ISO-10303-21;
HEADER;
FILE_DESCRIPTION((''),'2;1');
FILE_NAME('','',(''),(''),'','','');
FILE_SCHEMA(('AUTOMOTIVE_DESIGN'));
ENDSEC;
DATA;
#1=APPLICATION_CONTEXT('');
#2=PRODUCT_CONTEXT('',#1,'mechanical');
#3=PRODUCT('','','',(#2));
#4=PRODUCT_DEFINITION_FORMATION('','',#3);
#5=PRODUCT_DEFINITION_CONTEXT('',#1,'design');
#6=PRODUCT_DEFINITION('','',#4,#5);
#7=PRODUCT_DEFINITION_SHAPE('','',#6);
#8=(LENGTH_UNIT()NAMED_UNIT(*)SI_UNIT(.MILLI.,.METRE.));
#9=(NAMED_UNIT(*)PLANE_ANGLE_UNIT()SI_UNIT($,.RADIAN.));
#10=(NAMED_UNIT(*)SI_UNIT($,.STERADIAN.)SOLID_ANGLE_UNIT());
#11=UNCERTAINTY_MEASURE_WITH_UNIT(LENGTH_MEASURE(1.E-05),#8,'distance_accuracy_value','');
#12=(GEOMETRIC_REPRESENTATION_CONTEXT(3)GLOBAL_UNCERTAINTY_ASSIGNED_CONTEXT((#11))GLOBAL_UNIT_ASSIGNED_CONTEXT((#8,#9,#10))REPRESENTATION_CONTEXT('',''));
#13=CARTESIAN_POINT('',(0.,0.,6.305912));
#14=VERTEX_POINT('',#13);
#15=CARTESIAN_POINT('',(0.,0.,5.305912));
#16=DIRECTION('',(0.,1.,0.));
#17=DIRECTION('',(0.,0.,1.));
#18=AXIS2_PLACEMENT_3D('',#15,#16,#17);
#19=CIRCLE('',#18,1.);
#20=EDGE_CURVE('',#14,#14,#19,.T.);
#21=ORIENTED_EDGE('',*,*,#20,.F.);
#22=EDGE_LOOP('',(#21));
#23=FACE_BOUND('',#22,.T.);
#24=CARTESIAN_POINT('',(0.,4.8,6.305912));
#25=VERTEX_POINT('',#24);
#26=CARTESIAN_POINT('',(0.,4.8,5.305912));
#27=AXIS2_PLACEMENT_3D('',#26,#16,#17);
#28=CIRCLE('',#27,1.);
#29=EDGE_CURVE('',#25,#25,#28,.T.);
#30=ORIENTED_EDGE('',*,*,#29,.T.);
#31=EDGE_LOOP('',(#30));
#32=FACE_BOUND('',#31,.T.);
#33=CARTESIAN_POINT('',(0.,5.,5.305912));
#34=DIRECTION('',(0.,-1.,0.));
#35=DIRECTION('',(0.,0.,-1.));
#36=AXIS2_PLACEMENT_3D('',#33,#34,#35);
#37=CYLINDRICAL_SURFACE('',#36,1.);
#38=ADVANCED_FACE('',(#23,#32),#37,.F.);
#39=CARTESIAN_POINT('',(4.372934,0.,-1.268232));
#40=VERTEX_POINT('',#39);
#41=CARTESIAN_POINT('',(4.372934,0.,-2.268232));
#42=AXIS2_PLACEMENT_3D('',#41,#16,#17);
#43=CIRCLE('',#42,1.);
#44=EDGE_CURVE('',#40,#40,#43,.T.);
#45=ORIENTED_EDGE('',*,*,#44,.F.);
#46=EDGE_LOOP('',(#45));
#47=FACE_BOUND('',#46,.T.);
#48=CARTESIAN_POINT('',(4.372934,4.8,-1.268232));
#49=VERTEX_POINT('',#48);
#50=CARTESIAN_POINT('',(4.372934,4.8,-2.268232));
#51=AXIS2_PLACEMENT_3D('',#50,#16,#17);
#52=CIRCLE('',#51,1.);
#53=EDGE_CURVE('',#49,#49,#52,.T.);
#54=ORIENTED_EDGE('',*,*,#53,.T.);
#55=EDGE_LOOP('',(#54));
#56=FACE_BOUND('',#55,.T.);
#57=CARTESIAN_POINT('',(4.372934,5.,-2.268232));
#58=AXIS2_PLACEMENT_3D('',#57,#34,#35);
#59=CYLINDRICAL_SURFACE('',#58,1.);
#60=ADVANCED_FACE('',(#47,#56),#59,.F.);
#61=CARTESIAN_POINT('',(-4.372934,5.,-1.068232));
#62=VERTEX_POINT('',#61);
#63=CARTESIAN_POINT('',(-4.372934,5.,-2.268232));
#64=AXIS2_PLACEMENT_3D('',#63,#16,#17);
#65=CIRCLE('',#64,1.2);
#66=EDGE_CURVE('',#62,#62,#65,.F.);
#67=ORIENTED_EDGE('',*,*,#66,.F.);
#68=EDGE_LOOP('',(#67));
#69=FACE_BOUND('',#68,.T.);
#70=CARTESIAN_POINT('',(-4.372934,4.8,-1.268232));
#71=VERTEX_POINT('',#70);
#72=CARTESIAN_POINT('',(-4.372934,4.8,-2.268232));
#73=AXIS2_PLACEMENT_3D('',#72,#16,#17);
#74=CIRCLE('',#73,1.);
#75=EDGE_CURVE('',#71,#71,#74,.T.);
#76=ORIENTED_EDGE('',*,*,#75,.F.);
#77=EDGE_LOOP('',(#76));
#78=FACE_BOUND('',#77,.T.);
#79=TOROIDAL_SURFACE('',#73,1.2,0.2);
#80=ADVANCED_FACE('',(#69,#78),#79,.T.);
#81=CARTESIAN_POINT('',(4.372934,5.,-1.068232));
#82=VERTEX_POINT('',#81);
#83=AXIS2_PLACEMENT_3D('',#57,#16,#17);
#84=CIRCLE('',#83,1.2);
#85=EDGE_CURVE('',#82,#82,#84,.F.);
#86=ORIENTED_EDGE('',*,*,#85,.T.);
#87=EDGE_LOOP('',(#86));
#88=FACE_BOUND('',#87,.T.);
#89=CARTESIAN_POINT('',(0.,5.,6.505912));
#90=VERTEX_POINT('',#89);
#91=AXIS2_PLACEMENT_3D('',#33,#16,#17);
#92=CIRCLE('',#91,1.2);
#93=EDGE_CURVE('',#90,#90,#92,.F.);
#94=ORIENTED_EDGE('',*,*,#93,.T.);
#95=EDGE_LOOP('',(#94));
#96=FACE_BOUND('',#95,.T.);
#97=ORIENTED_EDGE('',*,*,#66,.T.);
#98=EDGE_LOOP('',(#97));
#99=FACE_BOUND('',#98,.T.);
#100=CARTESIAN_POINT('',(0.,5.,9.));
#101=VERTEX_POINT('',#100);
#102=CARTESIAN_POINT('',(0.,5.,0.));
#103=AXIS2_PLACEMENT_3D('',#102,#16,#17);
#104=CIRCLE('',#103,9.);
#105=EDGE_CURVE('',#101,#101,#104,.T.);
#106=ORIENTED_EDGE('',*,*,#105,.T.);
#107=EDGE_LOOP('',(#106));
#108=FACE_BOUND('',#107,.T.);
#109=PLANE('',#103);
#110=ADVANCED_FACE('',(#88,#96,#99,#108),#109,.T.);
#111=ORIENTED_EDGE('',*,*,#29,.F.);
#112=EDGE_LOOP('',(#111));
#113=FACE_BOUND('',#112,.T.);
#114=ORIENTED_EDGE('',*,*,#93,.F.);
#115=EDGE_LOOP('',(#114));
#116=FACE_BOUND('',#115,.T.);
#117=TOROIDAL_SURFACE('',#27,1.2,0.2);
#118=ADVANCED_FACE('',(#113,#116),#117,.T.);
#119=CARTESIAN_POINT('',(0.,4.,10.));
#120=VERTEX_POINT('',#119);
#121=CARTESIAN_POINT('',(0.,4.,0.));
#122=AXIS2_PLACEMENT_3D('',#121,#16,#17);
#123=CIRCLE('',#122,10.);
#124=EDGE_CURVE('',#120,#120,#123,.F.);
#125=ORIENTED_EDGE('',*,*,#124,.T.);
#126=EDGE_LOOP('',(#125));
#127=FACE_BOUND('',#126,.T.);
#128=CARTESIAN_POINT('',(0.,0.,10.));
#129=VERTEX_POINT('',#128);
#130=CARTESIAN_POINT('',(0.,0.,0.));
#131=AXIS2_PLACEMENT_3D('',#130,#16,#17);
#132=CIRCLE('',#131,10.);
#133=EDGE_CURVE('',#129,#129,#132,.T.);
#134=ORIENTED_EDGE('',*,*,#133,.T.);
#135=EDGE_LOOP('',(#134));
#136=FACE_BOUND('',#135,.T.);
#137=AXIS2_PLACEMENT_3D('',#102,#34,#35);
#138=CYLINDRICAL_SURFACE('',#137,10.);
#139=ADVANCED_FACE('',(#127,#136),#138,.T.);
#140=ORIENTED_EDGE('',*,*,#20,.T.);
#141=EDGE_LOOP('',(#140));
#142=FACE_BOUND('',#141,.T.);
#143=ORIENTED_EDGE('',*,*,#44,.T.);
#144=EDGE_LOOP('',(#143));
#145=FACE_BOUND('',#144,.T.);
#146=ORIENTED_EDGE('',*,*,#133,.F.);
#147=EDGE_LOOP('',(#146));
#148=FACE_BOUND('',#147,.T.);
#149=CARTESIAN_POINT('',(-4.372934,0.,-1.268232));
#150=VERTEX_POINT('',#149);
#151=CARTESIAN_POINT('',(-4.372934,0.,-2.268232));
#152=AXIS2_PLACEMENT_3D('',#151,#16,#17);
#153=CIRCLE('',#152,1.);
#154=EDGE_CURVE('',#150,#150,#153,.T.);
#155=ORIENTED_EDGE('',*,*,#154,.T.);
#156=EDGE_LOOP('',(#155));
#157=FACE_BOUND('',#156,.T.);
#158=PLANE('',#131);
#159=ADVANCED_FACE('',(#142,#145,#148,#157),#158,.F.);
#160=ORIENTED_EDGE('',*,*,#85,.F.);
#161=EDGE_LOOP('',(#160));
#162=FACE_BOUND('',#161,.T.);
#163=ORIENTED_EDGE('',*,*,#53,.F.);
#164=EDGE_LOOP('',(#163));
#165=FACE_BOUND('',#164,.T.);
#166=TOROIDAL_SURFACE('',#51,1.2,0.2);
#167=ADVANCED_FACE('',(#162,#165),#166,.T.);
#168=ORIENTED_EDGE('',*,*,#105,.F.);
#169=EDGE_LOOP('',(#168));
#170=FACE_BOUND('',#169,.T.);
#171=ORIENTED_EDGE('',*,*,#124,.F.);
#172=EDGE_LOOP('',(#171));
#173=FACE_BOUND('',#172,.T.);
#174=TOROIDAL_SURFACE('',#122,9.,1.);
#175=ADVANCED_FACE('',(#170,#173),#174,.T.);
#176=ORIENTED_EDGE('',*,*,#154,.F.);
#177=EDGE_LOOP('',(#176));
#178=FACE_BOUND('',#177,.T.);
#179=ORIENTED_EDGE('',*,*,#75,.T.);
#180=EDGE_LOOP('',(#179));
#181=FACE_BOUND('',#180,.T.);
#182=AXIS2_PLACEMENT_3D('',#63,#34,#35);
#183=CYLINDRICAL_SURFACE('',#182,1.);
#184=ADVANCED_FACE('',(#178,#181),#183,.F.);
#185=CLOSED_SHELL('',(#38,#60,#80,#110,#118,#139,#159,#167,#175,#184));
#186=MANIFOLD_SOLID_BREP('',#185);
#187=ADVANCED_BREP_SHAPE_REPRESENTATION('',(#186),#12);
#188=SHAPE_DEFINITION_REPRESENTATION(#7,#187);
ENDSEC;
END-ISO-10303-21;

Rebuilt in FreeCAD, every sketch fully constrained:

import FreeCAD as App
import Part
import Sketcher


def edges_at(feature, points):
    """Names of the edges that pass closest to the given points."""
    edges = feature.Shape.Edges
    near = lambda p: min(range(len(edges)), key=lambda i: edges[i].distToShape(Part.Vertex(*p))[0])
    return sorted({f"Edge{near(p) + 1}" for p in points})

doc = App.newDocument("Part")
params = doc.addObject("Spreadsheet::Sheet", "Params")
for row, (alias, value) in enumerate([
    ("sketch1_diameter", "20 mm"),
    ("sketch1_diameter2", "2 mm"),
    ("pad1_length", "5 mm"),
    ("fillet_radius", "1 mm"),
    ("fillet2_radius", "0.2 mm"),
], start=1):
    params.set(f"A{row}", alias)
    params.set(f"B{row}", "=" + value)
    params.setAlias(f"B{row}", alias)

body = doc.addObject("PartDesign::Body", "Body")

# Sketch on XZ plane
sketch1 = doc.addObject("Sketcher::SketchObject", "Sketch")
body.addObject(sketch1)
sketch1.AttachmentSupport = (doc.XZ_Plane, [""])
sketch1.MapMode = "FlatFace"
sketch1.addGeometry(Part.Circle(App.Vector(0, 0, 0), App.Vector(0, 0, 1), 10), False)
sketch1.addGeometry(Part.Circle(App.Vector(-4.4, -2.3, 0), App.Vector(0, 0, 1), 1), False)
sketch1.addGeometry(Part.Circle(App.Vector(4.4, -2.3, 0), App.Vector(0, 0, 1), 1), False)
sketch1.addGeometry(Part.Circle(App.Vector(0, 5.3, 0), App.Vector(0, 0, 1), 1), False)
sketch1.addConstraint(Sketcher.Constraint("Coincident", 0, 3, -1, 1))
sketch1.addConstraint(Sketcher.Constraint("Equal", 1, 2))
sketch1.addConstraint(Sketcher.Constraint("Equal", 2, 3))
sketch1.addConstraint(Sketcher.Constraint("Symmetric", 1, 3, 2, 3, -2))
sketch1.addConstraint(Sketcher.Constraint("PointOnObject", 3, 3, -2))
sketch1.addConstraint(Sketcher.Constraint("Diameter", 0, 20.0))
sketch1.addConstraint(Sketcher.Constraint("Diameter", 1, 2.0))
sketch1.addConstraint(Sketcher.Constraint("DistanceY", 1, 3, -1, 1, 2.268232))
sketch1.addConstraint(Sketcher.Constraint("DistanceX", 1, 3, 2, 3, 8.745869))
sketch1.addConstraint(Sketcher.Constraint("DistanceY", -1, 1, 3, 3, 5.305912))
sketch1.setExpression("Constraints[5]", "Params.sketch1_diameter")
sketch1.setExpression("Constraints[6]", "Params.sketch1_diameter2")
pad1 = doc.addObject("PartDesign::Pad", "Pad")
body.addObject(pad1)
pad1.Profile = sketch1
pad1.setExpression("Length", "Params.pad1_length")
pad1.Reversed = True
doc.recompute()

fillet = doc.addObject("PartDesign::Fillet", "Fillet")
body.addObject(fillet)
fillet.Base = (pad1, edges_at(pad1, [(0, 5, -10)]))
fillet.setExpression("Radius", "Params.fillet_radius")
doc.recompute()

fillet2 = doc.addObject("PartDesign::Fillet", "Fillet001")
body.addObject(fillet2)
fillet2.Base = (fillet, edges_at(fillet, [(0, 5, 4.306), (4.373, 5, -3.268), (-4.373, 5, -3.268)]))
fillet2.setExpression("Radius", "Params.fillet2_radius")

doc.recompute()
